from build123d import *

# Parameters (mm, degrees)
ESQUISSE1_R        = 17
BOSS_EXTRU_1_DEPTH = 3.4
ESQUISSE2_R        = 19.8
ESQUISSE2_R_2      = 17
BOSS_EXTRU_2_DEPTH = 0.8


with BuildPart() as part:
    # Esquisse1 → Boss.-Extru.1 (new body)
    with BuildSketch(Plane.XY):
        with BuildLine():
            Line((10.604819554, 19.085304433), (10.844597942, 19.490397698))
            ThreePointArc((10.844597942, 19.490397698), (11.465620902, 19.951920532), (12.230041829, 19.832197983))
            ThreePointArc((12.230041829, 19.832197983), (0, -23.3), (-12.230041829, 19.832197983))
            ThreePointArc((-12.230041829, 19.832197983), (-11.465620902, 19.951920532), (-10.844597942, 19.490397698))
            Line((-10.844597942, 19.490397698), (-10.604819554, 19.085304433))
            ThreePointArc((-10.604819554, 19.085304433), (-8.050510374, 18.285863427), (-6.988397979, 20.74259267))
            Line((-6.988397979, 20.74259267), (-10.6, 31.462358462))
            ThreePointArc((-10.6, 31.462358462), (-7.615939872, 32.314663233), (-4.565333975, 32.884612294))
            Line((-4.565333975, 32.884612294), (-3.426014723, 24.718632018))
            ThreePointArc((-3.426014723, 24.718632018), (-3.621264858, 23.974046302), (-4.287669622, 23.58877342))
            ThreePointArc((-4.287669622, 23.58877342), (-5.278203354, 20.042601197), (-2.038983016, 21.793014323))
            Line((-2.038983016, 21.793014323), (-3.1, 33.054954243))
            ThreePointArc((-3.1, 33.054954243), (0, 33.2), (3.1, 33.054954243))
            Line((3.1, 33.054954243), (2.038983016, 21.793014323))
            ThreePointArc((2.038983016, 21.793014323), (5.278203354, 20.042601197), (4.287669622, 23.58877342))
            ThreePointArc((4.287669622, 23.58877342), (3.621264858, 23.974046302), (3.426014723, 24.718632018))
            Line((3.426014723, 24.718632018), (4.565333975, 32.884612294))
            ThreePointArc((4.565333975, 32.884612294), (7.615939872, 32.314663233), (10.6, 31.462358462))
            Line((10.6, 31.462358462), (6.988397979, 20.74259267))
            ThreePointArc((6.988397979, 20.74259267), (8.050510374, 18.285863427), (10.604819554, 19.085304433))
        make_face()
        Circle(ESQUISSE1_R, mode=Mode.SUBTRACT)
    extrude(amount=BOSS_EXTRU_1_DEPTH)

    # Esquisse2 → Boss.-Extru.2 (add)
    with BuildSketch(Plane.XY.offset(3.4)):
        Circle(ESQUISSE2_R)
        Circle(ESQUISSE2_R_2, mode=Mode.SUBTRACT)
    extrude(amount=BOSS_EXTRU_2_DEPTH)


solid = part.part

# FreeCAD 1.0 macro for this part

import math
import FreeCAD as App
import Part
import Sketcher

doc = App.newDocument("Part")
body = doc.addObject("PartDesign::Body", "Body")

sketch1 = body.newObject("Sketcher::SketchObject", "Sketch")
sketch1.AttachmentSupport = (doc.getObject("XY_Plane"), [""])
sketch1.MapMode = "FlatFace"
sketch1.addGeometry([
    Part.LineSegment(App.Vector(10.844598, 19.490398, 0), App.Vector(10.60482, 19.085304, 0)),
    Part.ArcOfCircle(Part.Circle(App.Vector(8.883721, 20.104038, 0), App.Vector(0, 0, 1), 2), math.radians(161.380787), math.radians(329.378324)),
    Part.LineSegment(App.Vector(6.988398, 20.742593, 0), App.Vector(10.6, 31.462358, 0)),
    Part.ArcOfCircle(Part.Circle(App.Vector(0, 0, 0), App.Vector(0, 0, 1), 33.2), math.radians(71.380787), math.radians(82.09621)),
    Part.LineSegment(App.Vector(4.565334, 32.884612, 0), App.Vector(3.426015, 24.718632, 0)),
    Part.ArcOfCircle(Part.Circle(App.Vector(4.416422, 24.58045, 0), App.Vector(0, 0, 1), 1), math.radians(172.057353), math.radians(262.60252)),
    Part.ArcOfCircle(Part.Circle(App.Vector(4.030166, 21.60542, 0), App.Vector(0, 0, 1), 2), math.radians(174.6179), math.radians(442.60252)),
    Part.LineSegment(App.Vector(2.038983, 21.793014, 0), App.Vector(3.1, 33.054954, 0)),
    Part.ArcOfCircle(Part.Circle(App.Vector(0, 0, 0), App.Vector(0, 0, 1), 33.2), math.radians(84.642288), math.radians(95.357712)),
    Part.LineSegment(App.Vector(-3.1, 33.054954, 0), App.Vector(-2.038983, 21.793014, 0)),
    Part.ArcOfCircle(Part.Circle(App.Vector(-4.030166, 21.60542, 0), App.Vector(0, 0, 1), 2), math.radians(97.39748), math.radians(365.3821)),
    Part.ArcOfCircle(Part.Circle(App.Vector(-4.416422, 24.58045, 0), App.Vector(0, 0, 1), 1), math.radians(-82.60252), math.radians(7.942647)),
    Part.LineSegment(App.Vector(-3.426015, 24.718632, 0), App.Vector(-4.565334, 32.884612, 0)),
    Part.ArcOfCircle(Part.Circle(App.Vector(0, 0, 0), App.Vector(0, 0, 1), 33.2), math.radians(97.90379), math.radians(108.619213)),
    Part.LineSegment(App.Vector(-10.6, 31.462358, 0), App.Vector(-6.988398, 20.742593, 0)),
    Part.ArcOfCircle(Part.Circle(App.Vector(-8.883721, 20.104038, 0), App.Vector(0, 0, 1), 2), math.radians(-149.378324), math.radians(18.619213)),
    Part.LineSegment(App.Vector(-10.60482, 19.085304, 0), App.Vector(-10.844598, 19.490398, 0)),
    Part.ArcOfCircle(Part.Circle(App.Vector(-11.705147, 18.981031, 0), App.Vector(0, 0, 1), 1), math.radians(30.621676), math.radians(121.661141)),
    Part.ArcOfCircle(Part.Circle(App.Vector(0, 0, 0), App.Vector(0, 0, 1), 23.3), math.radians(121.661141), math.radians(418.338859)),
    Part.ArcOfCircle(Part.Circle(App.Vector(11.705147, 18.981031, 0), App.Vector(0, 0, 1), 1), math.radians(58.338859), math.radians(149.378324)),
    Part.Circle(App.Vector(0, 0, 0), App.Vector(0, 0, 1), 17),
], False)
sketch1.addConstraint([
    Sketcher.Constraint("Coincident", 0, 2, 1, 2),
    Sketcher.Constraint("Coincident", 1, 1, 2, 1),
    Sketcher.Constraint("Coincident", 2, 2, 3, 1),
    Sketcher.Constraint("Coincident", 3, 2, 4, 1),
    Sketcher.Constraint("Coincident", 4, 2, 5, 1),
    Sketcher.Constraint("Coincident", 5, 2, 6, 2),
    Sketcher.Constraint("Coincident", 6, 1, 7, 1),
    Sketcher.Constraint("Coincident", 7, 2, 8, 1),
    Sketcher.Constraint("Coincident", 8, 2, 9, 1),
    Sketcher.Constraint("Coincident", 9, 2, 10, 2),
    Sketcher.Constraint("Coincident", 10, 1, 11, 1),
    Sketcher.Constraint("Coincident", 11, 2, 12, 1),
    Sketcher.Constraint("Coincident", 12, 2, 13, 1),
    Sketcher.Constraint("Coincident", 13, 2, 14, 1),
    Sketcher.Constraint("Coincident", 14, 2, 15, 2),
    Sketcher.Constraint("Coincident", 15, 1, 16, 1),
    Sketcher.Constraint("Coincident", 16, 2, 17, 1),
    Sketcher.Constraint("Coincident", 17, 2, 18, 1),
    Sketcher.Constraint("Coincident", 18, 2, 19, 1),
    Sketcher.Constraint("Coincident", 19, 2, 0, 1),
    Sketcher.Constraint("Coincident", 3, 3, -1, 1),
    Sketcher.Constraint("Coincident", 8, 3, -1, 1),
    Sketcher.Constraint("Coincident", 13, 3, -1, 1),
    Sketcher.Constraint("Coincident", 18, 3, -1, 1),
    Sketcher.Constraint("Coincident", 20, 3, -1, 1),
    Sketcher.Constraint("Diameter", 20, 34.0),
    Sketcher.Constraint("Radius", 1, 2.0),
    Sketcher.Constraint("Radius", 5, 1.0),
    Sketcher.Constraint("Radius", 6, 2.0),
    Sketcher.Constraint("Radius", 10, 2.0),
    Sketcher.Constraint("Radius", 11, 1.0),
    Sketcher.Constraint("Radius", 15, 2.0),
    Sketcher.Constraint("Radius", 17, 1.0),
    Sketcher.Constraint("Radius", 19, 1.0),
    Sketcher.Constraint("Radius", 3, 33.2),
    Sketcher.Constraint("Radius", 8, 33.2),
    Sketcher.Constraint("Radius", 13, 33.2),
    Sketcher.Constraint("Radius", 18, 23.3),
    Sketcher.Constraint("DistanceX", -1, 1, 2, 2, 10.6),
    Sketcher.Constraint("DistanceX", -1, 1, 7, 2, 3.1),
    Sketcher.Constraint("DistanceX", 8, 2, -1, 1, 3.1),
    Sketcher.Constraint("DistanceX", 13, 2, -1, 1, 10.6),
    Sketcher.Constraint("DistanceX", 5, 3, 1, 3, 4.467299),
    Sketcher.Constraint("DistanceX", 15, 3, 11, 3, 4.467299),
    Sketcher.Constraint("DistanceX", 1, 3, 0, 2, 1.721099),
    Sketcher.Constraint("DistanceX", 15, 1, 15, 3, 1.721099),
    Sketcher.Constraint("DistanceX", 16, 2, 14, 2, 3.8562),
    Sketcher.Constraint("DistanceY", 16, 2, 17, 2, 0.3418),
    Sketcher.Constraint("DistanceY", 19, 2, 18, 2, 0.3418),
    Sketcher.Constraint("DistanceX", 1, 1, 19, 2, 3.8562),
    Sketcher.Constraint("Distance", 2, 11.31181),
    Sketcher.Constraint("Distance", 7, 11.31181),
    Sketcher.Constraint("Distance", 9, 11.31181),
    Sketcher.Constraint("Distance", 14, 11.31181),
    Sketcher.Constraint("DistanceX", -1, 1, 1, 3, 8.883721),
    Sketcher.Constraint("DistanceY", -1, 1, 1, 3, 20.104038),
    Sketcher.Constraint("DistanceY", -1, 1, 5, 3, 24.58045),
    Sketcher.Constraint("DistanceY", -1, 1, 6, 3, 21.60542),
    Sketcher.Constraint("DistanceY", -1, 1, 10, 3, 21.60542),
    Sketcher.Constraint("DistanceX", 11, 3, -1, 1, 4.416422),
    Sketcher.Constraint("DistanceY", -1, 1, 11, 3, 24.58045),
    Sketcher.Constraint("DistanceY", -1, 1, 15, 3, 20.104038),
    Sketcher.Constraint("DistanceY", -1, 1, 17, 3, 18.981031),
    Sketcher.Constraint("DistanceY", -1, 1, 19, 3, 18.981031),
    Sketcher.Constraint("DistanceX", -1, 1, 5, 2, 4.28767),
    Sketcher.Constraint("DistanceX", 10, 1, -1, 1, 4.28767),
    Sketcher.Constraint("DistanceX", 6, 3, 3, 2, 0.535168),
    Sketcher.Constraint("DistanceY", 5, 3, 4, 2, 0.138182),
    Sketcher.Constraint("DistanceY", 11, 3, 11, 2, 0.138182),
    Sketcher.Constraint("DistanceY", 12, 2, 8, 2, 0.170342),
])
pad1 = body.newObject("PartDesign::Pad", "Pad")
pad1.Profile = sketch1
pad1.Length = 3.4

sketch2 = body.newObject("Sketcher::SketchObject", "Sketch001")
sketch2.AttachmentSupport = (doc.getObject("XY_Plane"), [""])
sketch2.MapMode = "FlatFace"
sketch2.AttachmentOffset = App.Placement(App.Vector(0, 0, 3.4), App.Rotation())
sketch2.addGeometry([
    Part.Circle(App.Vector(0, 0, 0), App.Vector(0, 0, 1), 19.8),
    Part.Circle(App.Vector(0, 0, 0), App.Vector(0, 0, 1), 17),
], False)
sketch2.addConstraint([
    Sketcher.Constraint("Coincident", 0, 3, -1, 1),
    Sketcher.Constraint("Coincident", 1, 3, -1, 1),
    Sketcher.Constraint("Diameter", 1, 34.0),
    Sketcher.Constraint("Diameter", 0, 39.6),
])
pad2 = body.newObject("PartDesign::Pad", "Pad001")
pad2.Profile = sketch2
pad2.Length = 0.8

doc.recompute()
